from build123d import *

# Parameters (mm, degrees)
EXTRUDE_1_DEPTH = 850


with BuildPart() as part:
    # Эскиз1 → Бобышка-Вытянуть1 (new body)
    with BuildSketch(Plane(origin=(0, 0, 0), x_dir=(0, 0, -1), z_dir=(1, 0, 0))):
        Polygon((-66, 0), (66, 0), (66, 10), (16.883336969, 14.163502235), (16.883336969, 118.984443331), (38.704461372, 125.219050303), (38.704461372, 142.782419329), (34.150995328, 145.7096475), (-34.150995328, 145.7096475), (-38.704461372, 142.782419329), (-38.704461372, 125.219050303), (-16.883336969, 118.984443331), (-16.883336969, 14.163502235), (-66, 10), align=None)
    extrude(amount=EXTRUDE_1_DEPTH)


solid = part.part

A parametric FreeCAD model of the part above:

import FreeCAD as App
import Part
import Sketcher
from FreeCAD import Vector

doc = App.newDocument("Part")
body = doc.addObject("PartDesign::Body", "Body")

sketch1 = body.newObject("Sketcher::SketchObject", "Sketch")
sketch1.AttachmentSupport = (doc.getObject("YZ_Plane"), [""])
sketch1.MapMode = "FlatFace"
sketch1.addGeometry([
    Part.LineSegment(Vector(0, 66, 0), Vector(0, -66, 0)),
    Part.LineSegment(Vector(0, -66, 0), Vector(10, -66, 0)),
    Part.LineSegment(Vector(10, -66, 0), Vector(14.163502, -16.883337, 0)),
    Part.LineSegment(Vector(14.163502, -16.883337, 0), Vector(118.984443, -16.883337, 0)),
    Part.LineSegment(Vector(118.984443, -16.883337, 0), Vector(125.21905, -38.704461, 0)),
    Part.LineSegment(Vector(125.21905, -38.704461, 0), Vector(142.782419, -38.704461, 0)),
    Part.LineSegment(Vector(142.782419, -38.704461, 0), Vector(145.709647, -34.150995, 0)),
    Part.LineSegment(Vector(145.709647, -34.150995, 0), Vector(145.709647, 34.150995, 0)),
    Part.LineSegment(Vector(145.709647, 34.150995, 0), Vector(142.782419, 38.704461, 0)),
    Part.LineSegment(Vector(142.782419, 38.704461, 0), Vector(125.21905, 38.704461, 0)),
    Part.LineSegment(Vector(125.21905, 38.704461, 0), Vector(118.984443, 16.883337, 0)),
    Part.LineSegment(Vector(118.984443, 16.883337, 0), Vector(14.163502, 16.883337, 0)),
    Part.LineSegment(Vector(14.163502, 16.883337, 0), Vector(10, 66, 0)),
    Part.LineSegment(Vector(10, 66, 0), Vector(0, 66, 0)),
], False)
sketch1.addConstraint([
    Sketcher.Constraint("Coincident", 0, 2, 1, 1),
    Sketcher.Constraint("Coincident", 1, 2, 2, 1),
    Sketcher.Constraint("Coincident", 2, 2, 3, 1),
    Sketcher.Constraint("Coincident", 3, 2, 4, 1),
    Sketcher.Constraint("Coincident", 4, 2, 5, 1),
    Sketcher.Constraint("Coincident", 5, 2, 6, 1),
    Sketcher.Constraint("Coincident", 6, 2, 7, 1),
    Sketcher.Constraint("Coincident", 7, 2, 8, 1),
    Sketcher.Constraint("Coincident", 8, 2, 9, 1),
    Sketcher.Constraint("Coincident", 9, 2, 10, 1),
    Sketcher.Constraint("Coincident", 10, 2, 11, 1),
    Sketcher.Constraint("Coincident", 11, 2, 12, 1),
    Sketcher.Constraint("Coincident", 12, 2, 13, 1),
    Sketcher.Constraint("Coincident", 13, 2, 0, 1),
    Sketcher.Constraint("Vertical", 0),
    Sketcher.Constraint("Horizontal", 1),
    Sketcher.Constraint("Horizontal", 3),
    Sketcher.Constraint("Horizontal", 5),
    Sketcher.Constraint("Vertical", 7),
    Sketcher.Constraint("Horizontal", 9),
    Sketcher.Constraint("Horizontal", 11),
    Sketcher.Constraint("Horizontal", 13),
    Sketcher.Constraint("Symmetric", 0, 2, 13, 2, -1, 1),
    Sketcher.Constraint("Symmetric", 5, 2, 8, 2, -1),
    Sketcher.Constraint("Symmetric", 3, 2, 10, 2, -1),
    Sketcher.Constraint("Vertical", 4, 2, 9, 2),
    Sketcher.Constraint("Vertical", 2, 2, 11, 2),
    Sketcher.Constraint("Vertical", 1, 2, 12, 2),
    Sketcher.Constraint("Equal", 6, 8),
    Sketcher.Constraint("DistanceX", 1, 1, 1, 2, 10.0),
    Sketcher.Constraint("DistanceY", 0, 2, 0, 1, 132.0),
    Sketcher.Constraint("Distance", 6, 5.413198),
    Sketcher.Constraint("DistanceX", 3, 1, 3, 2, 104.820941),
    Sketcher.Constraint("DistanceX", 5, 1, 5, 2, 17.563369),
    Sketcher.Constraint("DistanceY", 7, 1, 7, 2, 68.301991),
    Sketcher.Constraint("DistanceY", 3, 2, 8, 2, 55.587798),
    Sketcher.Constraint("Distance", 4, 22.694312),
    Sketcher.Constraint("DistanceX", -1, 1, 4, 2, 125.21905),
    Sketcher.Constraint("DistanceY", 4, 2, -1, 1, 38.704461),
])
pad1 = body.newObject("PartDesign::Pad", "Pad")
pad1.Profile = sketch1
pad1.Length = 850

doc.recompute()
